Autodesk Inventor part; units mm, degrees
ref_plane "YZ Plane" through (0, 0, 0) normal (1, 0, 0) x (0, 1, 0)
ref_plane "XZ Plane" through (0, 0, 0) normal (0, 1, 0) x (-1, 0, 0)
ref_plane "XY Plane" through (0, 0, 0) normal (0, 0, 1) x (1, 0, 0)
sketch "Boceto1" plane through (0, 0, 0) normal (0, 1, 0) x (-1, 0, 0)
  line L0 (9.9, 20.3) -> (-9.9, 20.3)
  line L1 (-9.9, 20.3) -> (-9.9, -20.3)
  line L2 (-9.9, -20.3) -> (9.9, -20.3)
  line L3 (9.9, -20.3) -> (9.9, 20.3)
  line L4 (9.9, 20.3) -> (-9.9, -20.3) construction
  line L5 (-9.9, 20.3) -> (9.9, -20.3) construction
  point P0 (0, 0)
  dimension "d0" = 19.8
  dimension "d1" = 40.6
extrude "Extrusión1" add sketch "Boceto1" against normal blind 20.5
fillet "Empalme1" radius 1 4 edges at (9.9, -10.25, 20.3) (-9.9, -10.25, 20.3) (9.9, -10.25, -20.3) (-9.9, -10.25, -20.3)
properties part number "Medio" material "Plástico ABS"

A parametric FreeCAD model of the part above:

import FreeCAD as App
import Part
import Sketcher
from FreeCAD import Vector


def edges_at(feature, points):
    """Names of the edges that pass closest to the given points."""
    edges = feature.Shape.Edges
    near = lambda p: min(range(len(edges)), key=lambda i: edges[i].distToShape(Part.Vertex(*p))[0])
    return sorted({f"Edge{near(p) + 1}" for p in points})


def add_polygon(sketch, points):
    """Adds a closed chain of lines whose ends are joined by coincident constraints."""
    first, n = sketch.GeometryCount, len(points)
    for a, b in zip(points, points[1:] + points[:1]):
        sketch.addGeometry(Part.LineSegment(App.Vector(*a, 0), App.Vector(*b, 0)), False)
    for i in range(n):
        sketch.addConstraint(Sketcher.Constraint("Coincident", first + i, 2, first + (i + 1) % n, 1))

doc = App.newDocument("Part")
body = doc.addObject("PartDesign::Body", "Body")

sketch1 = body.newObject("Sketcher::SketchObject", "Sketch")
sketch1.AttachmentSupport = (doc.getObject("XZ_Plane"), [""])
sketch1.MapMode = "FlatFace"
add_polygon(sketch1, [(-10, -20), (-10, 20), (10, 20), (10, -20)])
sketch1.addConstraint([
    Sketcher.Constraint("Vertical", 0),
    Sketcher.Constraint("Horizontal", 1),
    Sketcher.Constraint("Vertical", 2),
    Sketcher.Constraint("Horizontal", 3),
    Sketcher.Constraint("Symmetric", 0, 2, 2, 2, -1, 1),
    Sketcher.Constraint("DistanceX", 1, 1, 1, 2, 19.8),
    Sketcher.Constraint("DistanceY", 0, 1, 0, 2, 40.6),
])
pad1 = body.newObject("PartDesign::Pad", "Pad")
pad1.Profile = sketch1
pad1.Length = 20.5
doc.recompute()

fillet = body.newObject("PartDesign::Fillet", "Fillet")
fillet.Base = (pad1, edges_at(pad1, [
    (9.9, -10.25, 20.3),
    (-9.9, -10.25, 20.3),
    (9.9, -10.25, -20.3),
    (-9.9, -10.25, -20.3),
]))
fillet.Radius = 1

doc.recompute()
